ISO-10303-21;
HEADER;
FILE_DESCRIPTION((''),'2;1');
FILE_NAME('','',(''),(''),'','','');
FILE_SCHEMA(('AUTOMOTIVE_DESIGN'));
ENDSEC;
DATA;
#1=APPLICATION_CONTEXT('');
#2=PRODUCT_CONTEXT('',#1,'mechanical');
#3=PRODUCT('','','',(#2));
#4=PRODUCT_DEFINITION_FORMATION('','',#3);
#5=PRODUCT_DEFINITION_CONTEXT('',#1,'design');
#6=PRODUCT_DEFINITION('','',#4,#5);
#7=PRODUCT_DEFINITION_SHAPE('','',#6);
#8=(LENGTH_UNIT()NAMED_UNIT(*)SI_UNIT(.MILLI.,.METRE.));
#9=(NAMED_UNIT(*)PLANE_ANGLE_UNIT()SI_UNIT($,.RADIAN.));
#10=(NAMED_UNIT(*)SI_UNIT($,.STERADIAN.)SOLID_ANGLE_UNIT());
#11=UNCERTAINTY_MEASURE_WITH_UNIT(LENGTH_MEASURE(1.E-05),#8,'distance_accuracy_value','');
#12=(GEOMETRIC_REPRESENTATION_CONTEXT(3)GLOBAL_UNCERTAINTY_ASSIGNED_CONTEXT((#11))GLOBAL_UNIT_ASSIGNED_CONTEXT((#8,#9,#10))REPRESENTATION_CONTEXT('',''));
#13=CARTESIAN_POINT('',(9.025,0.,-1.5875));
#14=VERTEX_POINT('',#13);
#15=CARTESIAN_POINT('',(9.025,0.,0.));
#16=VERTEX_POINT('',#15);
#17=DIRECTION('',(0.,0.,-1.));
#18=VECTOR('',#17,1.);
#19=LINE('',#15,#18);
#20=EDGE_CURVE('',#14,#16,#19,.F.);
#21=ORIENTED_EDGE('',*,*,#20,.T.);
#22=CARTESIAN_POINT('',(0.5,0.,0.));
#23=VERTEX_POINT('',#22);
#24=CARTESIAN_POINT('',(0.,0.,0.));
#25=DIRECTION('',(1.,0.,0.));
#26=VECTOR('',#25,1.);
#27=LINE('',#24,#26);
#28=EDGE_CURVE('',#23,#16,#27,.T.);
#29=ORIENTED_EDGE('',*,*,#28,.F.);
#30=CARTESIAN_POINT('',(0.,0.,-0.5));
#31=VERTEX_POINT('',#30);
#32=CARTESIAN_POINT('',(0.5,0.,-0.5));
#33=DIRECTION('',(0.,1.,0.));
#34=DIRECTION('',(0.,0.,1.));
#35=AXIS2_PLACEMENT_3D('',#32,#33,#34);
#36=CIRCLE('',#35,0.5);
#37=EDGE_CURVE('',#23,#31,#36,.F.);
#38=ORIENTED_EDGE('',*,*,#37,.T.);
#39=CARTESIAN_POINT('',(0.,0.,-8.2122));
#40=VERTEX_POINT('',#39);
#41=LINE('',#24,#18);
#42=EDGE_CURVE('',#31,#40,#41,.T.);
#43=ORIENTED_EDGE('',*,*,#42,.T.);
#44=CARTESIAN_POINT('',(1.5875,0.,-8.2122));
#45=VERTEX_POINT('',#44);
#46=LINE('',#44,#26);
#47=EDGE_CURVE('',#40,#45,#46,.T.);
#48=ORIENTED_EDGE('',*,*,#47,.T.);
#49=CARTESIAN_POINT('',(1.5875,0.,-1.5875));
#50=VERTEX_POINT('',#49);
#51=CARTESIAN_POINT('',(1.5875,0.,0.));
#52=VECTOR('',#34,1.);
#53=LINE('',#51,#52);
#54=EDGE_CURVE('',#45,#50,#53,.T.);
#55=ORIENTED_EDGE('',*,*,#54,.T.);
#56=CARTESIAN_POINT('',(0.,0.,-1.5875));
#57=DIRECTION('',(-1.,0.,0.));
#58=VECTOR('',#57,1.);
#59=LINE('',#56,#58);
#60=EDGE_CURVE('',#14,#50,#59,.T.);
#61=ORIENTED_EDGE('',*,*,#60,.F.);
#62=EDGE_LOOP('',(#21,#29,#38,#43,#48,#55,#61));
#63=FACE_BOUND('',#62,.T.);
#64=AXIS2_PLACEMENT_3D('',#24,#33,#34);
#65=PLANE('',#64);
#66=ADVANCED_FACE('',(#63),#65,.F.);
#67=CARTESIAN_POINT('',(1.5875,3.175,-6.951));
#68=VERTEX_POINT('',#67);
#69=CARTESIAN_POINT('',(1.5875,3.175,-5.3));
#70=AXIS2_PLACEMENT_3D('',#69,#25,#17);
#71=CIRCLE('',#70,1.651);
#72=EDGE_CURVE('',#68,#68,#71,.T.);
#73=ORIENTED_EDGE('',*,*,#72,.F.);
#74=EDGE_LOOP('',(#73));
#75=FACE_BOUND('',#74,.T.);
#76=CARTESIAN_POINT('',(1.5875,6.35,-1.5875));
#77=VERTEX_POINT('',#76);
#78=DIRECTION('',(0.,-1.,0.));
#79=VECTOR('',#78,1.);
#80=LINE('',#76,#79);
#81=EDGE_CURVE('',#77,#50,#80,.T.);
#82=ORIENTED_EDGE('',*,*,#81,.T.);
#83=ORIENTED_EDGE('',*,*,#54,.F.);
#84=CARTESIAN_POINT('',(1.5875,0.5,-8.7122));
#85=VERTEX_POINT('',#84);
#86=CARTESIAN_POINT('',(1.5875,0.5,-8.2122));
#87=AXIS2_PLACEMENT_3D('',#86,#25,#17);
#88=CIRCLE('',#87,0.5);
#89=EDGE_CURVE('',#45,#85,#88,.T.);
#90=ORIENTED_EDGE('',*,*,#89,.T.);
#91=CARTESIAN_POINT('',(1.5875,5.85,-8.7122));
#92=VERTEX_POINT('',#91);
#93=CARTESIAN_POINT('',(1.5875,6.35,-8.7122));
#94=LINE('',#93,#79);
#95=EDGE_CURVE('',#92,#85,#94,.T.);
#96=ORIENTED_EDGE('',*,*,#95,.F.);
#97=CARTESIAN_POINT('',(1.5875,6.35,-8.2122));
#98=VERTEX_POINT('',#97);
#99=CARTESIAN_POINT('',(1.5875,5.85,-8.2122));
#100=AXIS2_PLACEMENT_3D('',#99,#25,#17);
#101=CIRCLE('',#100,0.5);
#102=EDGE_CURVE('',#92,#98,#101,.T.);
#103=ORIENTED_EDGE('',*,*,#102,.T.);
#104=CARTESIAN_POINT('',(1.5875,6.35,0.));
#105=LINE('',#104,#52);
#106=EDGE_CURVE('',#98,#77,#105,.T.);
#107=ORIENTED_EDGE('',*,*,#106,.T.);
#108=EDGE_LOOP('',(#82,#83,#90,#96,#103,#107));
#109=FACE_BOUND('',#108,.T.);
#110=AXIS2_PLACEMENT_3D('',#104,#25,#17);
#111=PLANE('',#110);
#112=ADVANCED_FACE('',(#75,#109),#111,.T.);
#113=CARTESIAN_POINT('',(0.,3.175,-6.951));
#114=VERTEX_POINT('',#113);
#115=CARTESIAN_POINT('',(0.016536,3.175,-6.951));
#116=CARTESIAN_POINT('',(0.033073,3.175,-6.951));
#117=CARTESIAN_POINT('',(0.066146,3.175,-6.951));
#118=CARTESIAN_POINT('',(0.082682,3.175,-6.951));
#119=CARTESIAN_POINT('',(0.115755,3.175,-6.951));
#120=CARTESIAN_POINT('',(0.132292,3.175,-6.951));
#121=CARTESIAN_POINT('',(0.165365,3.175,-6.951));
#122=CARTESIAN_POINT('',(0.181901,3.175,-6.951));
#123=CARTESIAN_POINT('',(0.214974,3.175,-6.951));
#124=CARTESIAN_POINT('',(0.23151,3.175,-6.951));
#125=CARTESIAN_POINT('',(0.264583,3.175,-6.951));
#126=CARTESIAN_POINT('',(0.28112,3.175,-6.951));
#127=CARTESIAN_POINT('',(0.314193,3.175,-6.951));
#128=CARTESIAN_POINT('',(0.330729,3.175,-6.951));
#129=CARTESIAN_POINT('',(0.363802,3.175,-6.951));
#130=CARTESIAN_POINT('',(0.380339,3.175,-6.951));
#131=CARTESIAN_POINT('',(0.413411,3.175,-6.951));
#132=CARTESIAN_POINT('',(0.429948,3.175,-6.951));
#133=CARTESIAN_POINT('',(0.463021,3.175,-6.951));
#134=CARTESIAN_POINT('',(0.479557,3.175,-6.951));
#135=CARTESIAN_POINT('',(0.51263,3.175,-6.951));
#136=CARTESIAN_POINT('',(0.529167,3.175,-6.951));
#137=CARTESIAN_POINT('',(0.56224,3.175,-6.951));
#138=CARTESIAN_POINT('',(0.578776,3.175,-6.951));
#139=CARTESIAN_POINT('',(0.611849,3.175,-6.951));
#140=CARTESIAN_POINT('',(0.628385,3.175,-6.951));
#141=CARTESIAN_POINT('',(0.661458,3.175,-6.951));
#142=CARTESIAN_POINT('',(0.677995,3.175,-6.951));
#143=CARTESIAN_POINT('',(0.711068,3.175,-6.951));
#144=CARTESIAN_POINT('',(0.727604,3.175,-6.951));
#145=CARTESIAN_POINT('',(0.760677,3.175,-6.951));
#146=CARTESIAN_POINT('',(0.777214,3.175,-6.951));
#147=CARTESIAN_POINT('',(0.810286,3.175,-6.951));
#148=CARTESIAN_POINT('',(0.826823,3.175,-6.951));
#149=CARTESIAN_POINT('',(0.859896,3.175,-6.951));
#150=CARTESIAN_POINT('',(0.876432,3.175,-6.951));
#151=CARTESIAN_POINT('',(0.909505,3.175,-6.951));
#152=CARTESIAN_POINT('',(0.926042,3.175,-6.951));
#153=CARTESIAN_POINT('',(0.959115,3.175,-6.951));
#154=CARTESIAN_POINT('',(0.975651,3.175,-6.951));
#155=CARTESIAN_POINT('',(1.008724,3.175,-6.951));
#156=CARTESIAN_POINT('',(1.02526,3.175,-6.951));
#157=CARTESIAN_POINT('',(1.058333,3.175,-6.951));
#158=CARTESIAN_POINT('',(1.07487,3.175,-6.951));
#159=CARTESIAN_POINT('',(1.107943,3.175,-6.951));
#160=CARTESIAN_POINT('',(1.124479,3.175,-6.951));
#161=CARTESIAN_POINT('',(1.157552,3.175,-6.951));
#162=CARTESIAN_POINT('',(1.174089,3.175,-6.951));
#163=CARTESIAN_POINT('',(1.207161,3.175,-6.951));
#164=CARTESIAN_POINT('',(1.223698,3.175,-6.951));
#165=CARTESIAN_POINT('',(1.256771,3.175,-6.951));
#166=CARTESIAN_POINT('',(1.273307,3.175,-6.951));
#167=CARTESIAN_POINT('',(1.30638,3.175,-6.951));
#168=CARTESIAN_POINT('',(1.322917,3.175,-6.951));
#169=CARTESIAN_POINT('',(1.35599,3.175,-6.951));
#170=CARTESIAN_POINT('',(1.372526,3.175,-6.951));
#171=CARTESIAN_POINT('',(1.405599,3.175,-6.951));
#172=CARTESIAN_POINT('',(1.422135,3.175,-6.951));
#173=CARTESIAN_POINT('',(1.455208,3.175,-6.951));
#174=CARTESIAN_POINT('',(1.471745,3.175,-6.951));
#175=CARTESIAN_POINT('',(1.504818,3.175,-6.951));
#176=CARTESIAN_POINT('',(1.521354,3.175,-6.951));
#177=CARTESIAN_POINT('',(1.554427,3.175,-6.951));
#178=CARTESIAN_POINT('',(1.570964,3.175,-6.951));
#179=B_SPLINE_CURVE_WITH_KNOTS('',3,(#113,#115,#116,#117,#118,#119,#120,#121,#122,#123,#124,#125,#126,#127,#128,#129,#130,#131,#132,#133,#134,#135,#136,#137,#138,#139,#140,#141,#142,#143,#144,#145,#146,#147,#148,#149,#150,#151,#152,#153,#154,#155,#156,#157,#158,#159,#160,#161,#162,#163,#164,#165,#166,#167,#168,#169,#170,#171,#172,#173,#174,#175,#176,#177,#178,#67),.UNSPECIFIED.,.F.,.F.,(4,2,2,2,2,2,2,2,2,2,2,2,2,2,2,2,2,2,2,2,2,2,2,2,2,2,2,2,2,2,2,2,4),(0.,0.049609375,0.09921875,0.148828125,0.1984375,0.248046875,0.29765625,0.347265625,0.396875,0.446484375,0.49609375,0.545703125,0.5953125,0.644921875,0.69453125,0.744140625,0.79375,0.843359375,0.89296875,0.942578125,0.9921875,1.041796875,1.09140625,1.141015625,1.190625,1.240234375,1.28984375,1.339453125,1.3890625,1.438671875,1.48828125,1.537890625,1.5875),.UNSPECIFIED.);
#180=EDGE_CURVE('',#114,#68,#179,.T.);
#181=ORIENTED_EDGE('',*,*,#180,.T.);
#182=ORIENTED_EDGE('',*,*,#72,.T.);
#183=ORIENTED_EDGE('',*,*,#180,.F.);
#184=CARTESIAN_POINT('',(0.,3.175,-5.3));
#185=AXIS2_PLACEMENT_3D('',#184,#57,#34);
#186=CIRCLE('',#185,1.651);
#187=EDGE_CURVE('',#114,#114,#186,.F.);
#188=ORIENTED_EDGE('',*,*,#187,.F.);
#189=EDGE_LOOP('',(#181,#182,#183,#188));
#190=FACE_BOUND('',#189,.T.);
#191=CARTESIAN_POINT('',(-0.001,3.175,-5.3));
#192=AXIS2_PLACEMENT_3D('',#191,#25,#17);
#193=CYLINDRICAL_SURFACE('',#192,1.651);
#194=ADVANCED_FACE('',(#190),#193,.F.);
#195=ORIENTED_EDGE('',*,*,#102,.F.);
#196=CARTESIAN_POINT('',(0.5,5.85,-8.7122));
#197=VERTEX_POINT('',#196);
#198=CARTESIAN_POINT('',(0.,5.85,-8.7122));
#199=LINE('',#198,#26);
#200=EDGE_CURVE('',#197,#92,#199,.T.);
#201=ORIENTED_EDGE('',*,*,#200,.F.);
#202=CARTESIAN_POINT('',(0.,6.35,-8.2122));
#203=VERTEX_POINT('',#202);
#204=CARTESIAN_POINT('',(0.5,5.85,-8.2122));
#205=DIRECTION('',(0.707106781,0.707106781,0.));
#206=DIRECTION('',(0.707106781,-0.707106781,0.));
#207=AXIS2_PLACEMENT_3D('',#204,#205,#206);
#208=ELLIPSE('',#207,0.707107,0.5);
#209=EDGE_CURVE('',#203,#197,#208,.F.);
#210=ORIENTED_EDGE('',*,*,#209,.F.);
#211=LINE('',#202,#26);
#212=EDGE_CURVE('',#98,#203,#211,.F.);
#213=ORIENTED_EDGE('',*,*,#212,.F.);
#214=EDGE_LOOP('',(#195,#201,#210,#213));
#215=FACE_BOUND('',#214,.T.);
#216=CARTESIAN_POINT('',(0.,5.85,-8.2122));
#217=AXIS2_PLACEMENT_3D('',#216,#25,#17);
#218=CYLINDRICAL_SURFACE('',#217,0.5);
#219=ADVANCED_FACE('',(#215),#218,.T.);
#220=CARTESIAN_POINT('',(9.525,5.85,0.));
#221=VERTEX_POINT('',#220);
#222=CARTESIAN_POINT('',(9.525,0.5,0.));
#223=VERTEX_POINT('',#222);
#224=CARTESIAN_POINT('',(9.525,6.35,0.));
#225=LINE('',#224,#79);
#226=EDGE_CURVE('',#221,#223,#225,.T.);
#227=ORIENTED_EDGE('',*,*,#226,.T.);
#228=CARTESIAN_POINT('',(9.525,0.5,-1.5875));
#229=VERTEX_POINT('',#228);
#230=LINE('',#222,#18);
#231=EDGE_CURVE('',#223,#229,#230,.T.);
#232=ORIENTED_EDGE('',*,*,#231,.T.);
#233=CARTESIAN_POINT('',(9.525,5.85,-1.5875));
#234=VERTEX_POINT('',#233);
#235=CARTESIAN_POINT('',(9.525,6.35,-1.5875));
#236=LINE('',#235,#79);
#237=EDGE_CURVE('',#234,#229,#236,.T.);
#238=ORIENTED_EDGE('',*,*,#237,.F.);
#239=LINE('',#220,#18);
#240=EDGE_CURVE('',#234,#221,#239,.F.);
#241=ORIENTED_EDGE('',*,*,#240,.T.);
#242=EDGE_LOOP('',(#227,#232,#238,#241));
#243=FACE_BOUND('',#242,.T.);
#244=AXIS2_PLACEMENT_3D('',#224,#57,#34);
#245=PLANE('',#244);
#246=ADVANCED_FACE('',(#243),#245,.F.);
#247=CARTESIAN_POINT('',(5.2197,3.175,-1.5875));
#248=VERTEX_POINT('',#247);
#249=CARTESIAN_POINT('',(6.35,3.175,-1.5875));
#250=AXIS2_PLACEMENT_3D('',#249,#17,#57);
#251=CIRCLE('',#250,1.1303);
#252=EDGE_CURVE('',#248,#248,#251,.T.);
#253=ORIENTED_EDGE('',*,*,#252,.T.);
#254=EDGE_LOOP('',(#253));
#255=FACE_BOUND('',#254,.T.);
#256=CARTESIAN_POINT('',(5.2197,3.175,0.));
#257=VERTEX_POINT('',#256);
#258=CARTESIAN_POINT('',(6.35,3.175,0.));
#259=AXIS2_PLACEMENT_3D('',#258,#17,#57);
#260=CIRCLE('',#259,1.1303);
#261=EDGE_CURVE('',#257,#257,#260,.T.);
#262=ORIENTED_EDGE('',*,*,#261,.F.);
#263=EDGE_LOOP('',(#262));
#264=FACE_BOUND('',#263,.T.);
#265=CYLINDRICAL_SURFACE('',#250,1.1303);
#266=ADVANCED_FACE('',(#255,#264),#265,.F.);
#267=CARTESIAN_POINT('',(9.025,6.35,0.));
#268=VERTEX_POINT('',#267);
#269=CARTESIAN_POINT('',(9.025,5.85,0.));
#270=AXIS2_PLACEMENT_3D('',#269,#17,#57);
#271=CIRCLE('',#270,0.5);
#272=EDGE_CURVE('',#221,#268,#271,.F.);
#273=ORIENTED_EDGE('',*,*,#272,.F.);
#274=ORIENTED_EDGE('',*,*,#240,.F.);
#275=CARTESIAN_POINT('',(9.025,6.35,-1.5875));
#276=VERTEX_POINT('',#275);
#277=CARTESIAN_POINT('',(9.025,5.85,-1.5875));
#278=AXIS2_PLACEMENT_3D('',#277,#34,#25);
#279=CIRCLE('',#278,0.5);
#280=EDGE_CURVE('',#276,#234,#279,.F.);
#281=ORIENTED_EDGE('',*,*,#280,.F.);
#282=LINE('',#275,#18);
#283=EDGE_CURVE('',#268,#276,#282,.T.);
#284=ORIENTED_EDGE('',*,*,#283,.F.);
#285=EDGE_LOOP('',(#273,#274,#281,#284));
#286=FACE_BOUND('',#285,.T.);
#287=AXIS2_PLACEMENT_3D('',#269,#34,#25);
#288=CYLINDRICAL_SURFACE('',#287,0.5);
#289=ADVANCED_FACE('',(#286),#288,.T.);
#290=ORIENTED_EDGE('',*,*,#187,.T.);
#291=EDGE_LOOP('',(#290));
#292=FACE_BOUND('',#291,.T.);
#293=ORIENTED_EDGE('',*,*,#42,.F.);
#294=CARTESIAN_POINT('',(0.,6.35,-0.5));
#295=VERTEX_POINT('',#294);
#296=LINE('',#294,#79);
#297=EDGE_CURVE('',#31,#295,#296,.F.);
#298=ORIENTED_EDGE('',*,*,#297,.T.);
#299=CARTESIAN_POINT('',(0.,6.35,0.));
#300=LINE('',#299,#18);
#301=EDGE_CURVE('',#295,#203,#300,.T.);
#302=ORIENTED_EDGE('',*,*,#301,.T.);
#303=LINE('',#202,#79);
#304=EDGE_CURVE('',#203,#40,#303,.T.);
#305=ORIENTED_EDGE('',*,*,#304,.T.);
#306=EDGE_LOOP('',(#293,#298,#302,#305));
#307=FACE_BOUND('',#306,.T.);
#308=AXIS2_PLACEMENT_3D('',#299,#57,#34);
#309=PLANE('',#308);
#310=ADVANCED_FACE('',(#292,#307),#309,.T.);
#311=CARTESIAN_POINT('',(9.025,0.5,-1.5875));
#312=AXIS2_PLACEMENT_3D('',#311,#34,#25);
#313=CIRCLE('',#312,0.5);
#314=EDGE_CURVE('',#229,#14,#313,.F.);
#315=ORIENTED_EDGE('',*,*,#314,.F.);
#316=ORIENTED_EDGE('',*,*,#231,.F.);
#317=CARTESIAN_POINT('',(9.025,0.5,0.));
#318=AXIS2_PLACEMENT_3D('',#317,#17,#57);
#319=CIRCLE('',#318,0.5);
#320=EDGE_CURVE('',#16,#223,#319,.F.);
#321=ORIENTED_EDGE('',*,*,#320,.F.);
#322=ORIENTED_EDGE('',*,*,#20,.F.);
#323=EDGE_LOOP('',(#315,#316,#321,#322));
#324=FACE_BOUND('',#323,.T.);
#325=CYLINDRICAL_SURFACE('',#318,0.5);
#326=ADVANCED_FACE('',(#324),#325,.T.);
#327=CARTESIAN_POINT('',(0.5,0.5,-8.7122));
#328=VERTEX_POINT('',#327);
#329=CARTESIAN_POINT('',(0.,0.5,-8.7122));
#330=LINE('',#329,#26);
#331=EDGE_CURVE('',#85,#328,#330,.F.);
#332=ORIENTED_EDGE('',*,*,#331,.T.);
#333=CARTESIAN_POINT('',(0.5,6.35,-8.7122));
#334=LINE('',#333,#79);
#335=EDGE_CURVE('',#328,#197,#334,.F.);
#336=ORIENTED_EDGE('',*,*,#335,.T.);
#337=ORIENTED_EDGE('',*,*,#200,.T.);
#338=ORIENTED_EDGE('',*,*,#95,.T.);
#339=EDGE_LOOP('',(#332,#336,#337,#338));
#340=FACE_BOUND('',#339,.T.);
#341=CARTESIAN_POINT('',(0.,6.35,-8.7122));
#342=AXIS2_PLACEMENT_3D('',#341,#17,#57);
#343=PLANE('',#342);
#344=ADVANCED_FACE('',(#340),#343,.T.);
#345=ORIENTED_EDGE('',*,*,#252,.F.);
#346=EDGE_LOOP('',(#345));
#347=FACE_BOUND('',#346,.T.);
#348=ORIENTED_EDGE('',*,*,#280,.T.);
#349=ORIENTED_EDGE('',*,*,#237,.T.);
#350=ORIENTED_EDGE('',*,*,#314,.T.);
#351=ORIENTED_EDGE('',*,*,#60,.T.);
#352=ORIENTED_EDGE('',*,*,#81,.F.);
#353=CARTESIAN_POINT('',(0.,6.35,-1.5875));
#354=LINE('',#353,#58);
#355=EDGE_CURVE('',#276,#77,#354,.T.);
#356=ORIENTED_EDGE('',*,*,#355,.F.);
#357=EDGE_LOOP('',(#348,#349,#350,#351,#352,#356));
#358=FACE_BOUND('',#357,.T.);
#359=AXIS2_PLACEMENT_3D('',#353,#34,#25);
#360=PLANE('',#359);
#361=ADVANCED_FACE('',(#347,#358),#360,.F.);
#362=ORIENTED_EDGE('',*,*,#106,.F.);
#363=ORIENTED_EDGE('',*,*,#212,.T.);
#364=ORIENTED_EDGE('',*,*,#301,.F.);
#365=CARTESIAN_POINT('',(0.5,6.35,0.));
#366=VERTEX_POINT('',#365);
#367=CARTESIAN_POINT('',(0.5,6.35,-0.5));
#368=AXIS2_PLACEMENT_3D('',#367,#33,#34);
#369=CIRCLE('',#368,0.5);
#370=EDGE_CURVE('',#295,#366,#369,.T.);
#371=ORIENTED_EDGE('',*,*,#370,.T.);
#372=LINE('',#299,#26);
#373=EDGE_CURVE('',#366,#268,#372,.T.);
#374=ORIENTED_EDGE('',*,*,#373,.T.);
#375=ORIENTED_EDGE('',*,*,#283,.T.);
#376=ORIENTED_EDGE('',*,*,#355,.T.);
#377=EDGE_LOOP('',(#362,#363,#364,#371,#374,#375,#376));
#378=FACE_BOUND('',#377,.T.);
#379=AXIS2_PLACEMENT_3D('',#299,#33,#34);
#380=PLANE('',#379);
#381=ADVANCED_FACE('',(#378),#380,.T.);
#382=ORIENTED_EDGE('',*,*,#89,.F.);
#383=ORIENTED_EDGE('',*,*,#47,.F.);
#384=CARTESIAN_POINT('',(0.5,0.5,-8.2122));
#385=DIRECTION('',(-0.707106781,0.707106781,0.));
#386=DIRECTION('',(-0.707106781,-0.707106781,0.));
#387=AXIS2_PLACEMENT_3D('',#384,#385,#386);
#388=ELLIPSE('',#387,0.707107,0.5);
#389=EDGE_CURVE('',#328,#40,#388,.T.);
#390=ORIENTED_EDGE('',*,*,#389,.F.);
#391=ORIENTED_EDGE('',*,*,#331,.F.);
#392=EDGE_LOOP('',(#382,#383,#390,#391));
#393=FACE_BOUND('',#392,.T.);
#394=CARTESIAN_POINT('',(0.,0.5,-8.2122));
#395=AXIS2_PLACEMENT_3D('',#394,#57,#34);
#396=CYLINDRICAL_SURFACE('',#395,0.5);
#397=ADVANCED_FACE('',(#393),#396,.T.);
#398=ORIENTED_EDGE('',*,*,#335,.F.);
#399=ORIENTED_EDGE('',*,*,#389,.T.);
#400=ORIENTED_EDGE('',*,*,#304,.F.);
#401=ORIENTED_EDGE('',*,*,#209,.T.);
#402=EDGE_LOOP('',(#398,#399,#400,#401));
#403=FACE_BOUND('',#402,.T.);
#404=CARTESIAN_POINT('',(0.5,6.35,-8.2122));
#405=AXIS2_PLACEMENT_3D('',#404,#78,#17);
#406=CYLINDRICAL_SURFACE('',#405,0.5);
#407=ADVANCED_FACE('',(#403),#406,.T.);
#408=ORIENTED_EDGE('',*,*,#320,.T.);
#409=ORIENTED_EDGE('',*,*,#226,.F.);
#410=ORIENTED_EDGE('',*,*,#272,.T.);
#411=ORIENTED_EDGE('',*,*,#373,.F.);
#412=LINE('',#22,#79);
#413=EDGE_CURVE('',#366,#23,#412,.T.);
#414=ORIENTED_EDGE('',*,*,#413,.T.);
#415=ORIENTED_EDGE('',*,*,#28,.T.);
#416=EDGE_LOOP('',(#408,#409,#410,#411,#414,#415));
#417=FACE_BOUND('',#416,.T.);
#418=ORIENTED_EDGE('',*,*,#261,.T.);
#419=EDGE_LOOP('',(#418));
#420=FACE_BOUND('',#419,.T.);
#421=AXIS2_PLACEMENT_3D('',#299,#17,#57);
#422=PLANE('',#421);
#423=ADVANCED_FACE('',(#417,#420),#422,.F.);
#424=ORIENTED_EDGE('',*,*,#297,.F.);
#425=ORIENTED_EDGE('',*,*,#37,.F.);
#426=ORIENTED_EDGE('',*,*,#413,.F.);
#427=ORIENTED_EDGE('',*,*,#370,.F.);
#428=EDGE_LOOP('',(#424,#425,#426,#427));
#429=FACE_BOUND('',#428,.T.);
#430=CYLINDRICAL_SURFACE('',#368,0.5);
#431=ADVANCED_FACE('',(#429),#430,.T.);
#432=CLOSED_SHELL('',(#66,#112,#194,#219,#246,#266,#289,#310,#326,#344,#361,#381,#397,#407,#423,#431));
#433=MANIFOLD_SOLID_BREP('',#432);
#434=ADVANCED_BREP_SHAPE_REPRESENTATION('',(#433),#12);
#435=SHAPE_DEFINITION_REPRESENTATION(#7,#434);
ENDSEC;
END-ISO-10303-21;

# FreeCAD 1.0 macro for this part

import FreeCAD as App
import Part
import Sketcher
from FreeCAD import Vector
Q = App.Units.Quantity


def edges_at(feature, points):
    """Names of the edges that pass closest to the given points."""
    edges = feature.Shape.Edges
    near = lambda p: min(range(len(edges)), key=lambda i: edges[i].distToShape(Part.Vertex(*p))[0])
    return sorted({f"Edge{near(p) + 1}" for p in points})


def add_polygon(sketch, points):
    """Adds a closed chain of lines whose ends are joined by coincident constraints."""
    first, n = sketch.GeometryCount, len(points)
    for a, b in zip(points, points[1:] + points[:1]):
        sketch.addGeometry(Part.LineSegment(App.Vector(*a, 0), App.Vector(*b, 0)), False)
    for i in range(n):
        sketch.addConstraint(Sketcher.Constraint("Coincident", first + i, 2, first + (i + 1) % n, 1))

doc = App.newDocument("Part")
params = doc.addObject("Spreadsheet::Sheet", "Params")
for row, (alias, value) in enumerate([
    ("sketch1_width", "0.375 in"),
    ("sketch1_width2", "0.3125 in"),
    ("sketch1_height", "0.343 in"),
    ("pad1_length", "0.25 in"),
    ("sketch2_diameter", "0.13 in"),
    ("sketch3_diameter", "0.089 in"),
    ("hole_diameter", "0.089 in"),
    ("fillet_radius", "0.5 mm"),
], start=1):
    params.set(f"A{row}", alias)
    params.set(f"B{row}", "=" + value)
    params.setAlias(f"B{row}", alias)

body = doc.addObject("PartDesign::Body", "Body")

# Sketch on XZ plane
sketch1 = body.newObject("Sketcher::SketchObject", "Sketch")
sketch1.AttachmentSupport = (doc.getObject("XZ_Plane"), [""])
sketch1.MapMode = "FlatFace"
add_polygon(sketch1, [(0, -8.7122), (0, 0), (9.525, 0), (9.525, -1.5875), (1.5875, -1.5875), (1.5875, -8.7122)])  # lines 0-5
sketch1.addConstraint([
    Sketcher.Constraint("Vertical", 0),
    Sketcher.Constraint("Horizontal", 1),
    Sketcher.Constraint("Vertical", 2),
    Sketcher.Constraint("Horizontal", 3),
    Sketcher.Constraint("Vertical", 4),
    Sketcher.Constraint("Horizontal", 5),
    Sketcher.Constraint("Coincident", 0, 2, -1, 1),
    Sketcher.Constraint("Equal", 5, 2),
    Sketcher.Constraint("DistanceX", 1, 1, 1, 2, Q("0.375 in")),
    Sketcher.Constraint("DistanceX", 3, 2, 3, 1, Q("0.3125 in")),
    Sketcher.Constraint("DistanceY", 0, 1, 0, 2, Q("0.343 in")),
])
sketch1.setExpression("Constraints[14]", "Params.sketch1_width")
sketch1.setExpression("Constraints[15]", "Params.sketch1_width2")
sketch1.setExpression("Constraints[16]", "Params.sketch1_height")
pad1 = body.newObject("PartDesign::Pad", "Pad")
pad1.Profile = sketch1
pad1.setExpression("Length", "Params.pad1_length")
pad1.Reversed = True

# Sketch on YZ plane
sketch2 = body.newObject("Sketcher::SketchObject", "Sketch001")
sketch2.AttachmentSupport = (doc.getObject("YZ_Plane"), [""])
sketch2.MapMode = "FlatFace"
sketch2.AttachmentOffset = App.Placement(Vector(0, 0, 0.0625 * 25.4), App.Rotation())
sketch2.addGeometry(Part.Circle(Vector(3.175, -5.3, 0), Vector(0, 0, 1), 1.651), False)
sketch2.addConstraint([
    Sketcher.Constraint("Diameter", 0, Q("0.13 in")),
    Sketcher.Constraint("DistanceX", -1, 1, 0, 3, Q("0.125 in")),
    Sketcher.Constraint("DistanceY", 0, 3, -1, 1, Q("5.3 mm")),
])
sketch2.setExpression("Constraints[0]", "Params.sketch2_diameter")
pocket1 = body.newObject("PartDesign::Pocket", "Pocket")
pocket1.Profile = sketch2
pocket1.Type = "UpToFirst"

# Sketch on XY plane
sketch3 = body.newObject("Sketcher::SketchObject", "Sketch002")
sketch3.AttachmentSupport = (doc.getObject("XY_Plane"), [""])
sketch3.MapMode = "FlatFace"
sketch3.AttachmentOffset = App.Placement(Vector(0, 0, -0.0625 * 25.4), App.Rotation())
sketch3.addGeometry(Part.Circle(Vector(6.35, 3.175, 0), Vector(0, 0, 1), 1.1303), False)
sketch3.addConstraint([
    Sketcher.Constraint("Diameter", 0, Q("0.089 in")),
    Sketcher.Constraint("DistanceX", -1, 1, 0, 3, Q("0.25 in")),
    Sketcher.Constraint("DistanceY", -1, 1, 0, 3, Q("0.125 in")),
])
sketch3.setExpression("Constraints[0]", "Params.sketch3_diameter")
doc.recompute()
hole = body.newObject("PartDesign::Hole", "Hole")
hole.Profile = sketch3
hole.ThreadType = "None"
hole.setExpression("Diameter", "Params.hole_diameter")
hole.DepthType = "ThroughAll"
hole.Reversed = True
doc.recompute()

fillet = body.newObject("PartDesign::Fillet", "Fillet")
fillet.Base = (hole, edges_at(hole, [
    (0, 3.175, 0),
    (0, 3.175, -8.712),
    (9.525, 6.35, -0.794),
    (9.525, 0, -0.794),
    (0.794, 6.35, -8.712),
    (0.794, 0, -8.712),
]))
fillet.setExpression("Radius", "Params.fillet_radius")

doc.recompute()
